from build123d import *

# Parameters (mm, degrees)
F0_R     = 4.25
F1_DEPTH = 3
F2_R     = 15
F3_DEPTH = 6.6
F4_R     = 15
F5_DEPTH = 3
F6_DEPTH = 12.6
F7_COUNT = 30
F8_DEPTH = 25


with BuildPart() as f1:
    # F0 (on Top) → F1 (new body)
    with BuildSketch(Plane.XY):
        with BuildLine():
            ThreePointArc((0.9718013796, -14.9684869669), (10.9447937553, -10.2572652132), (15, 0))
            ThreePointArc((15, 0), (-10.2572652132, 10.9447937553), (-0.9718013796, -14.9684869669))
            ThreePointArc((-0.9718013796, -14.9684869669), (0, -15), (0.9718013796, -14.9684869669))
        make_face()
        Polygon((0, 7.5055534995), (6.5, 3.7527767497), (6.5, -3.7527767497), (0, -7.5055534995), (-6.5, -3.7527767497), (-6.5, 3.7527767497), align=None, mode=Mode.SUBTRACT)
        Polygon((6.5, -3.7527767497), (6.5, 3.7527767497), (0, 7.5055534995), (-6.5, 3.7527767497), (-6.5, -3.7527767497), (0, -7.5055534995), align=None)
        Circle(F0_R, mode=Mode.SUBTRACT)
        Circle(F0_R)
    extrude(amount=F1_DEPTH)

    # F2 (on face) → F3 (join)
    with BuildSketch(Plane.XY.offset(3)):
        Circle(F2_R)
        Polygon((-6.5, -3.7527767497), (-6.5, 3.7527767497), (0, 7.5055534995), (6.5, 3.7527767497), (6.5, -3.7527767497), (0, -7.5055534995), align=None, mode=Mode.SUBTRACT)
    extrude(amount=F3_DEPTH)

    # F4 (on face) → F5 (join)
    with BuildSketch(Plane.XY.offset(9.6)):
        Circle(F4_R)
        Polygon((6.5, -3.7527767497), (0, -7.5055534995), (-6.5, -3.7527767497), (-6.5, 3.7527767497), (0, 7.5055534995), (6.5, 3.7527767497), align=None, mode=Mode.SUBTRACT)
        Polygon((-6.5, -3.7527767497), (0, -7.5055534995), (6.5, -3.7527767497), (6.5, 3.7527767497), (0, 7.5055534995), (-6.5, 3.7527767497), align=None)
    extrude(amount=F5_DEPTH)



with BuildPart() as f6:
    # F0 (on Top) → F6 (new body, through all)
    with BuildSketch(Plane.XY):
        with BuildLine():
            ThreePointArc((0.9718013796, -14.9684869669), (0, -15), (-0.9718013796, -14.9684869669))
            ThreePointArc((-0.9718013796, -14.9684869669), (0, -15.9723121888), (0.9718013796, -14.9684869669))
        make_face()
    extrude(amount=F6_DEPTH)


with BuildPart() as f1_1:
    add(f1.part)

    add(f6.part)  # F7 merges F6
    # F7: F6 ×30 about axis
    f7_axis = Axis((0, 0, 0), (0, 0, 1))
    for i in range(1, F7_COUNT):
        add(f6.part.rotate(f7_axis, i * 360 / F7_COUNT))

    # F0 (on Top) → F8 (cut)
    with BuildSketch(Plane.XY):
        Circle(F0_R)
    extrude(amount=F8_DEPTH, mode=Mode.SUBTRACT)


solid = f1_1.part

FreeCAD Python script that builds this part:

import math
import FreeCAD as App
import Part
import Sketcher
Q = App.Units.Quantity

doc = App.newDocument("Part")
body = doc.addObject("PartDesign::Body", "Body")

sketch1 = body.newObject("Sketcher::SketchObject", "Sketch")
sketch1.AttachmentSupport = (doc.getObject("XY_Plane"), [""])
sketch1.MapMode = "FlatFace"
sketch1.addGeometry([
    Part.ArcOfCircle(Part.Circle(App.Vector(0, 0, 0), App.Vector(0, 0, 1), 15), math.radians(-86), math.radians(266)),
    Part.ArcOfCircle(Part.Circle(App.Vector(0, 0, 0), App.Vector(0, 0, 1), 15), math.radians(-93.71), math.radians(-86.29)),
], False)
sketch1.addConstraint([
    Sketcher.Constraint("Tangent", 0, 1, 1, 2),
    Sketcher.Constraint("Coincident", 1, 1, 0, 2),
    Sketcher.Constraint("Coincident", 0, 3, -1, 1),
    Sketcher.Constraint("Horizontal", 0, 1, 1, 1),
    Sketcher.Constraint("Radius", 0, Q("15 mm")),
    Sketcher.Constraint("DistanceX", -1, 1, 0, 1, Q("0.971801 mm")),
])
pad1 = body.newObject("PartDesign::Pad", "Pad")
pad1.Profile = sketch1
pad1.Length = 3

sketch2 = body.newObject("Sketcher::SketchObject", "Sketch001")
sketch2.AttachmentSupport = (doc.getObject("XY_Plane"), [""])
sketch2.MapMode = "FlatFace"
sketch2.AttachmentOffset = App.Placement(App.Vector(0, 0, 3), App.Rotation())
sketch2.addGeometry([
    Part.Circle(App.Vector(0, 0, 0), App.Vector(0, 0, 1), 15),
    Part.LineSegment(App.Vector(0, -8, 0), App.Vector(-6, -4, 0)),
    Part.LineSegment(App.Vector(-6, -4, 0), App.Vector(-6, 4, 0)),
    Part.LineSegment(App.Vector(-6, 4, 0), App.Vector(0, 8, 0)),
    Part.LineSegment(App.Vector(0, 8, 0), App.Vector(6, 4, 0)),
    Part.LineSegment(App.Vector(6, 4, 0), App.Vector(6, -4, 0)),
    Part.LineSegment(App.Vector(6, -4, 0), App.Vector(0, -8, 0)),
], False)
sketch2.addConstraint([
    Sketcher.Constraint("Coincident", 1, 2, 2, 1),
    Sketcher.Constraint("Coincident", 2, 2, 3, 1),
    Sketcher.Constraint("Coincident", 3, 2, 4, 1),
    Sketcher.Constraint("Coincident", 4, 2, 5, 1),
    Sketcher.Constraint("Coincident", 5, 2, 6, 1),
    Sketcher.Constraint("Coincident", 6, 2, 1, 1),
    Sketcher.Constraint("Vertical", 2),
    Sketcher.Constraint("Vertical", 5),
    Sketcher.Constraint("Coincident", 0, 3, -1, 1),
    Sketcher.Constraint("Symmetric", 1, 2, 4, 2, -1, 1),
    Sketcher.Constraint("Symmetric", 3, 2, 6, 2, -1, 1),
    Sketcher.Constraint("PointOnObject", 3, 2, -2),
    Sketcher.Constraint("Parallel", 3, 6),
    Sketcher.Constraint("Horizontal", 2, 2, 4, 2),
    Sketcher.Constraint("Diameter", 0, Q("30 mm")),
    Sketcher.Constraint("Angle", 1, Q("150 deg")),
    Sketcher.Constraint("DistanceX", 2, 2, 4, 2, Q("13 mm")),
    Sketcher.Constraint("DistanceY", 2, 1, 2, 2, Q("7.505554 mm")),
])
pad2 = body.newObject("PartDesign::Pad", "Pad001")
pad2.Profile = sketch2
pad2.Length = 6.6

sketch3 = body.newObject("Sketcher::SketchObject", "Sketch002")
sketch3.AttachmentSupport = (doc.getObject("XY_Plane"), [""])
sketch3.MapMode = "FlatFace"
sketch3.AttachmentOffset = App.Placement(App.Vector(0, 0, 9.6), App.Rotation())
sketch3.addGeometry(Part.Circle(App.Vector(0, 0, 0), App.Vector(0, 0, 1), 15), False)
sketch3.addConstraint([
    Sketcher.Constraint("Coincident", 0, 3, -1, 1),
    Sketcher.Constraint("Diameter", 0, Q("30 mm")),
])
pad3 = body.newObject("PartDesign::Pad", "Pad002")
pad3.Profile = sketch3
pad3.Length = 3
body2 = doc.addObject("PartDesign::Body", "Body001")

sketch4 = body2.newObject("Sketcher::SketchObject", "Sketch003")
sketch4.AttachmentSupport = (doc.getObject("XY_Plane001"), [""])
sketch4.MapMode = "FlatFace"
sketch4.addGeometry([
    Part.ArcOfCircle(Part.Circle(App.Vector(0, 0, 0), App.Vector(0, 0, 1), 15), math.radians(-93.71), math.radians(-86.29)),
    Part.ArcOfCircle(Part.Circle(App.Vector(0, -15, 0), App.Vector(0, 0, 1), 1), math.radians(178), math.radians(362)),
], False)
sketch4.addConstraint([
    Sketcher.Constraint("Coincident", 0, 1, 1, 1),
    Sketcher.Constraint("Coincident", 1, 2, 0, 2),
    Sketcher.Constraint("Coincident", 0, 3, -1, 1),
    Sketcher.Constraint("PointOnObject", 1, 3, -2),
    Sketcher.Constraint("Radius", 0, Q("15 mm")),
    Sketcher.Constraint("DistanceY", 1, 3, -1, 1, Q("15 mm")),
    Sketcher.Constraint("Radius", 1, Q("0.972312 mm")),
])
pad4 = body2.newObject("PartDesign::Pad", "Pad003")
pad4.Profile = sketch4
pad4.Length = 12.6
doc.recompute()

body3 = doc.addObject("PartDesign::Body", "Body002")
body3.BaseFeature = body2
boolean = body.newObject("PartDesign::Boolean", "Boolean")
boolean.Type = "Fuse"
boolean.addObjects([body3])
doc.recompute()

body4 = doc.addObject("PartDesign::Body", "Body003")
body4.BaseFeature = body2
body4.Placement = App.Placement(App.Vector(0, 0, 0), App.Rotation(App.Vector(0, 0, 1), 12))
boolean2 = body.newObject("PartDesign::Boolean", "Boolean001")
boolean2.Type = "Fuse"
boolean2.addObjects([body4])
doc.recompute()

body5 = doc.addObject("PartDesign::Body", "Body004")
body5.BaseFeature = body2
body5.Placement = App.Placement(App.Vector(0, 0, 0), App.Rotation(App.Vector(0, 0, 1), 24))
boolean3 = body.newObject("PartDesign::Boolean", "Boolean002")
boolean3.Type = "Fuse"
boolean3.addObjects([body5])
doc.recompute()

body6 = doc.addObject("PartDesign::Body", "Body005")
body6.BaseFeature = body2
body6.Placement = App.Placement(App.Vector(0, 0, 0), App.Rotation(App.Vector(0, 0, 1), 36))
boolean4 = body.newObject("PartDesign::Boolean", "Boolean003")
boolean4.Type = "Fuse"
boolean4.addObjects([body6])
doc.recompute()

body7 = doc.addObject("PartDesign::Body", "Body006")
body7.BaseFeature = body2
body7.Placement = App.Placement(App.Vector(0, 0, 0), App.Rotation(App.Vector(0, 0, 1), 48))
boolean5 = body.newObject("PartDesign::Boolean", "Boolean004")
boolean5.Type = "Fuse"
boolean5.addObjects([body7])
doc.recompute()

body8 = doc.addObject("PartDesign::Body", "Body007")
body8.BaseFeature = body2
body8.Placement = App.Placement(App.Vector(0, 0, 0), App.Rotation(App.Vector(0, 0, 1), 60))
boolean6 = body.newObject("PartDesign::Boolean", "Boolean005")
boolean6.Type = "Fuse"
boolean6.addObjects([body8])
doc.recompute()

body9 = doc.addObject("PartDesign::Body", "Body008")
body9.BaseFeature = body2
body9.Placement = App.Placement(App.Vector(0, 0, 0), App.Rotation(App.Vector(0, 0, 1), 72))
boolean7 = body.newObject("PartDesign::Boolean", "Boolean006")
boolean7.Type = "Fuse"
boolean7.addObjects([body9])
doc.recompute()

body10 = doc.addObject("PartDesign::Body", "Body009")
body10.BaseFeature = body2
body10.Placement = App.Placement(App.Vector(0, 0, 0), App.Rotation(App.Vector(0, 0, 1), 84))
boolean8 = body.newObject("PartDesign::Boolean", "Boolean007")
boolean8.Type = "Fuse"
boolean8.addObjects([body10])
doc.recompute()

body11 = doc.addObject("PartDesign::Body", "Body010")
body11.BaseFeature = body2
body11.Placement = App.Placement(App.Vector(0, 0, 0), App.Rotation(App.Vector(0, 0, 1), 96))
boolean9 = body.newObject("PartDesign::Boolean", "Boolean008")
boolean9.Type = "Fuse"
boolean9.addObjects([body11])
doc.recompute()

body12 = doc.addObject("PartDesign::Body", "Body011")
body12.BaseFeature = body2
body12.Placement = App.Placement(App.Vector(0, 0, 0), App.Rotation(App.Vector(0, 0, 1), 108))
boolean10 = body.newObject("PartDesign::Boolean", "Boolean009")
boolean10.Type = "Fuse"
boolean10.addObjects([body12])
doc.recompute()

body13 = doc.addObject("PartDesign::Body", "Body012")
body13.BaseFeature = body2
body13.Placement = App.Placement(App.Vector(0, 0, 0), App.Rotation(App.Vector(0, 0, 1), 120))
boolean11 = body.newObject("PartDesign::Boolean", "Boolean010")
boolean11.Type = "Fuse"
boolean11.addObjects([body13])
doc.recompute()

body14 = doc.addObject("PartDesign::Body", "Body013")
body14.BaseFeature = body2
body14.Placement = App.Placement(App.Vector(0, 0, 0), App.Rotation(App.Vector(0, 0, 1), 132))
boolean12 = body.newObject("PartDesign::Boolean", "Boolean011")
boolean12.Type = "Fuse"
boolean12.addObjects([body14])
doc.recompute()

body15 = doc.addObject("PartDesign::Body", "Body014")
body15.BaseFeature = body2
body15.Placement = App.Placement(App.Vector(0, 0, 0), App.Rotation(App.Vector(0, 0, 1), 144))
boolean13 = body.newObject("PartDesign::Boolean", "Boolean012")
boolean13.Type = "Fuse"
boolean13.addObjects([body15])
doc.recompute()

body16 = doc.addObject("PartDesign::Body", "Body015")
body16.BaseFeature = body2
body16.Placement = App.Placement(App.Vector(0, 0, 0), App.Rotation(App.Vector(0, 0, 1), 156))
boolean14 = body.newObject("PartDesign::Boolean", "Boolean013")
boolean14.Type = "Fuse"
boolean14.addObjects([body16])
doc.recompute()

body17 = doc.addObject("PartDesign::Body", "Body016")
body17.BaseFeature = body2
body17.Placement = App.Placement(App.Vector(0, 0, 0), App.Rotation(App.Vector(0, 0, 1), 168))
boolean15 = body.newObject("PartDesign::Boolean", "Boolean014")
boolean15.Type = "Fuse"
boolean15.addObjects([body17])
doc.recompute()

body18 = doc.addObject("PartDesign::Body", "Body017")
body18.BaseFeature = body2
body18.Placement = App.Placement(App.Vector(0, 0, 0), App.Rotation(App.Vector(0, 0, 1), 180))
boolean16 = body.newObject("PartDesign::Boolean", "Boolean015")
boolean16.Type = "Fuse"
boolean16.addObjects([body18])
doc.recompute()

body19 = doc.addObject("PartDesign::Body", "Body018")
body19.BaseFeature = body2
body19.Placement = App.Placement(App.Vector(0, 0, 0), App.Rotation(App.Vector(0, 0, 1), 192))
boolean17 = body.newObject("PartDesign::Boolean", "Boolean016")
boolean17.Type = "Fuse"
boolean17.addObjects([body19])
doc.recompute()

body20 = doc.addObject("PartDesign::Body", "Body019")
body20.BaseFeature = body2
body20.Placement = App.Placement(App.Vector(0, 0, 0), App.Rotation(App.Vector(0, 0, 1), 204))
boolean18 = body.newObject("PartDesign::Boolean", "Boolean017")
boolean18.Type = "Fuse"
boolean18.addObjects([body20])
doc.recompute()

body21 = doc.addObject("PartDesign::Body", "Body020")
body21.BaseFeature = body2
body21.Placement = App.Placement(App.Vector(0, 0, 0), App.Rotation(App.Vector(0, 0, 1), 216))
boolean19 = body.newObject("PartDesign::Boolean", "Boolean018")
boolean19.Type = "Fuse"
boolean19.addObjects([body21])
doc.recompute()

body22 = doc.addObject("PartDesign::Body", "Body021")
body22.BaseFeature = body2
body22.Placement = App.Placement(App.Vector(0, 0, 0), App.Rotation(App.Vector(0, 0, 1), 228))
boolean20 = body.newObject("PartDesign::Boolean", "Boolean019")
boolean20.Type = "Fuse"
boolean20.addObjects([body22])
doc.recompute()

body23 = doc.addObject("PartDesign::Body", "Body022")
body23.BaseFeature = body2
body23.Placement = App.Placement(App.Vector(0, 0, 0), App.Rotation(App.Vector(0, 0, 1), 240))
boolean21 = body.newObject("PartDesign::Boolean", "Boolean020")
boolean21.Type = "Fuse"
boolean21.addObjects([body23])
doc.recompute()

body24 = doc.addObject("PartDesign::Body", "Body023")
body24.BaseFeature = body2
body24.Placement = App.Placement(App.Vector(0, 0, 0), App.Rotation(App.Vector(0, 0, 1), 252))
boolean22 = body.newObject("PartDesign::Boolean", "Boolean021")
boolean22.Type = "Fuse"
boolean22.addObjects([body24])
doc.recompute()

body25 = doc.addObject("PartDesign::Body", "Body024")
body25.BaseFeature = body2
body25.Placement = App.Placement(App.Vector(0, 0, 0), App.Rotation(App.Vector(0, 0, 1), 264))
boolean23 = body.newObject("PartDesign::Boolean", "Boolean022")
boolean23.Type = "Fuse"
boolean23.addObjects([body25])
doc.recompute()

body26 = doc.addObject("PartDesign::Body", "Body025")
body26.BaseFeature = body2
body26.Placement = App.Placement(App.Vector(0, 0, 0), App.Rotation(App.Vector(0, 0, 1), 276))
boolean24 = body.newObject("PartDesign::Boolean", "Boolean023")
boolean24.Type = "Fuse"
boolean24.addObjects([body26])
doc.recompute()

body27 = doc.addObject("PartDesign::Body", "Body026")
body27.BaseFeature = body2
body27.Placement = App.Placement(App.Vector(0, 0, 0), App.Rotation(App.Vector(0, 0, 1), 288))
boolean25 = body.newObject("PartDesign::Boolean", "Boolean024")
boolean25.Type = "Fuse"
boolean25.addObjects([body27])
doc.recompute()

body28 = doc.addObject("PartDesign::Body", "Body027")
body28.BaseFeature = body2
body28.Placement = App.Placement(App.Vector(0, 0, 0), App.Rotation(App.Vector(0, 0, 1), 300))
boolean26 = body.newObject("PartDesign::Boolean", "Boolean025")
boolean26.Type = "Fuse"
boolean26.addObjects([body28])
doc.recompute()

body29 = doc.addObject("PartDesign::Body", "Body028")
body29.BaseFeature = body2
body29.Placement = App.Placement(App.Vector(0, 0, 0), App.Rotation(App.Vector(0, 0, 1), 312))
boolean27 = body.newObject("PartDesign::Boolean", "Boolean026")
boolean27.Type = "Fuse"
boolean27.addObjects([body29])
doc.recompute()

body30 = doc.addObject("PartDesign::Body", "Body029")
body30.BaseFeature = body2
body30.Placement = App.Placement(App.Vector(0, 0, 0), App.Rotation(App.Vector(0, 0, 1), 324))
boolean28 = body.newObject("PartDesign::Boolean", "Boolean027")
boolean28.Type = "Fuse"
boolean28.addObjects([body30])
doc.recompute()

body31 = doc.addObject("PartDesign::Body", "Body030")
body31.BaseFeature = body2
body31.Placement = App.Placement(App.Vector(0, 0, 0), App.Rotation(App.Vector(0, 0, 1), 336))
boolean29 = body.newObject("PartDesign::Boolean", "Boolean028")
boolean29.Type = "Fuse"
boolean29.addObjects([body31])
doc.recompute()

body2.Placement = App.Placement(App.Vector(0, 0, 0), App.Rotation(App.Vector(0, 0, 1), 348))
boolean30 = body.newObject("PartDesign::Boolean", "Boolean029")
boolean30.Type = "Fuse"
boolean30.addObjects([body2])

sketch5 = body.newObject("Sketcher::SketchObject", "Sketch004")
sketch5.AttachmentSupport = (doc.getObject("XY_Plane"), [""])
sketch5.MapMode = "FlatFace"
sketch5.addGeometry(Part.Circle(App.Vector(0, 0, 0), App.Vector(0, 0, 1), 4.2), False)
sketch5.addConstraint([
    Sketcher.Constraint("Coincident", 0, 3, -1, 1),
    Sketcher.Constraint("Diameter", 0, Q("8.5 mm")),
])
pocket1 = body.newObject("PartDesign::Pocket", "Pocket")
pocket1.Profile = sketch5
pocket1.Length = 25
pocket1.Reversed = True

doc.recompute()
